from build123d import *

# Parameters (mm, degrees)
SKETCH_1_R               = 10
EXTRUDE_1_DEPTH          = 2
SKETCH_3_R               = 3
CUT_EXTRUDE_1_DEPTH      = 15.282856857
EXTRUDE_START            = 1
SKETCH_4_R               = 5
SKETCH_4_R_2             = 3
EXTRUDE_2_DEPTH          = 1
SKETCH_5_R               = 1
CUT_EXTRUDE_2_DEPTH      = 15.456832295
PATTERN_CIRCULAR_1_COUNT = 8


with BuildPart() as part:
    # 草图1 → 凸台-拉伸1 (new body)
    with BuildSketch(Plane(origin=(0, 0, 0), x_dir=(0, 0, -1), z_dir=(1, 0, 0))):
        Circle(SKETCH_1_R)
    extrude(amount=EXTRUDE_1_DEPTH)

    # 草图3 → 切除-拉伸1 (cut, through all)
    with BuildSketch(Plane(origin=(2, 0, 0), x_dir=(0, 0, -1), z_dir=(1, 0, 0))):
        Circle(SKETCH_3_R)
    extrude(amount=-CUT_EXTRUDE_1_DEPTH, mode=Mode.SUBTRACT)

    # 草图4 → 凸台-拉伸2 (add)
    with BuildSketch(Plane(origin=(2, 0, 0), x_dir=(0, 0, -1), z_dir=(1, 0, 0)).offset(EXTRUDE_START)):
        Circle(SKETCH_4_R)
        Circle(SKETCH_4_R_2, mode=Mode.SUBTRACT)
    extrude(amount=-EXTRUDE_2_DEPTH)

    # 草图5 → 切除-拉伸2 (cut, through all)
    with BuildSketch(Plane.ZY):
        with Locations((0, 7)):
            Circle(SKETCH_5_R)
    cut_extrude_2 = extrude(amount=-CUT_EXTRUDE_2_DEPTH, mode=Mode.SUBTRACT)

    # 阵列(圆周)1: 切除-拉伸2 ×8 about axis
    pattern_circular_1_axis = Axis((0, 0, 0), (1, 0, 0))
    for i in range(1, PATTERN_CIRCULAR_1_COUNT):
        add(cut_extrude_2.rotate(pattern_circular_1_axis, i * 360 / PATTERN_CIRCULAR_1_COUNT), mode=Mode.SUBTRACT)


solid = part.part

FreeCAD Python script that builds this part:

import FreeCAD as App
import Part
import Sketcher

V = App.Vector

doc = App.newDocument("Part")
body = doc.addObject("PartDesign::Body", "Body")

sketch1 = body.newObject("Sketcher::SketchObject", "Sketch")
sketch1.AttachmentSupport = (doc.getObject("YZ_Plane"), [""])
sketch1.MapMode = "FlatFace"
sketch1.addGeometry(Part.Circle(V(0, 0, 0), V(0, 0, 1), 10), False)
sketch1.addConstraint(Sketcher.Constraint("Coincident", 0, 3, -1, 1))
sketch1.addConstraint(Sketcher.Constraint("Diameter", 0, 20.0))
pad1 = body.newObject("PartDesign::Pad", "Pad")
pad1.Profile = sketch1
pad1.Length = 2

sketch2 = body.newObject("Sketcher::SketchObject", "Sketch001")
sketch2.AttachmentSupport = (doc.getObject("YZ_Plane"), [""])
sketch2.MapMode = "FlatFace"
sketch2.AttachmentOffset = App.Placement(V(0, 0, 2), App.Rotation())
sketch2.addGeometry(Part.Circle(V(0, 0, 0), V(0, 0, 1), 3), False)
sketch2.addConstraint(Sketcher.Constraint("Coincident", 0, 3, -1, 1))
sketch2.addConstraint(Sketcher.Constraint("Diameter", 0, 6.0))
pocket1 = body.newObject("PartDesign::Pocket", "Pocket")
pocket1.Profile = sketch2
pocket1.Type = "ThroughAll"

sketch3 = body.newObject("Sketcher::SketchObject", "Sketch002")
sketch3.AttachmentSupport = (doc.getObject("YZ_Plane"), [""])
sketch3.MapMode = "FlatFace"
sketch3.AttachmentOffset = App.Placement(V(0, 0, 3), App.Rotation())
sketch3.addGeometry(Part.Circle(V(0, 0, 0), V(0, 0, 1), 5), False)
sketch3.addGeometry(Part.Circle(V(0, 0, 0), V(0, 0, 1), 3), False)
sketch3.addConstraint(Sketcher.Constraint("Coincident", 0, 3, -1, 1))
sketch3.addConstraint(Sketcher.Constraint("Coincident", 1, 3, -1, 1))
sketch3.addConstraint(Sketcher.Constraint("Diameter", 0, 10.0))
sketch3.addConstraint(Sketcher.Constraint("Diameter", 1, 6.0))
pad2 = body.newObject("PartDesign::Pad", "Pad001")
pad2.Profile = sketch3
pad2.Length = 1
pad2.Reversed = True

sketch4 = body.newObject("Sketcher::SketchObject", "Sketch003")
sketch4.AttachmentSupport = (doc.getObject("YZ_Plane"), [""])
sketch4.MapMode = "FlatFace"
sketch4.addGeometry(Part.Circle(V(7, 0, 0), V(0, 0, 1), 1), False)
sketch4.addConstraint(Sketcher.Constraint("PointOnObject", 0, 3, -1))
sketch4.addConstraint(Sketcher.Constraint("Diameter", 0, 2.0))
sketch4.addConstraint(Sketcher.Constraint("DistanceX", -1, 1, 0, 3, 7.0))
pocket2 = body.newObject("PartDesign::Pocket", "Pocket001")
pocket2.Profile = sketch4
pocket2.Type = "ThroughAll"
pocket2.Reversed = True
doc.recompute()

polarpattern = body.newObject("PartDesign::PolarPattern", "PolarPattern")
polarpattern.Originals = [pocket2]
polarpattern.Axis = (doc.getObject("X_Axis"), [""])
polarpattern.Angle = 360
polarpattern.Occurrences = 8
body.Tip = polarpattern

doc.recompute()
